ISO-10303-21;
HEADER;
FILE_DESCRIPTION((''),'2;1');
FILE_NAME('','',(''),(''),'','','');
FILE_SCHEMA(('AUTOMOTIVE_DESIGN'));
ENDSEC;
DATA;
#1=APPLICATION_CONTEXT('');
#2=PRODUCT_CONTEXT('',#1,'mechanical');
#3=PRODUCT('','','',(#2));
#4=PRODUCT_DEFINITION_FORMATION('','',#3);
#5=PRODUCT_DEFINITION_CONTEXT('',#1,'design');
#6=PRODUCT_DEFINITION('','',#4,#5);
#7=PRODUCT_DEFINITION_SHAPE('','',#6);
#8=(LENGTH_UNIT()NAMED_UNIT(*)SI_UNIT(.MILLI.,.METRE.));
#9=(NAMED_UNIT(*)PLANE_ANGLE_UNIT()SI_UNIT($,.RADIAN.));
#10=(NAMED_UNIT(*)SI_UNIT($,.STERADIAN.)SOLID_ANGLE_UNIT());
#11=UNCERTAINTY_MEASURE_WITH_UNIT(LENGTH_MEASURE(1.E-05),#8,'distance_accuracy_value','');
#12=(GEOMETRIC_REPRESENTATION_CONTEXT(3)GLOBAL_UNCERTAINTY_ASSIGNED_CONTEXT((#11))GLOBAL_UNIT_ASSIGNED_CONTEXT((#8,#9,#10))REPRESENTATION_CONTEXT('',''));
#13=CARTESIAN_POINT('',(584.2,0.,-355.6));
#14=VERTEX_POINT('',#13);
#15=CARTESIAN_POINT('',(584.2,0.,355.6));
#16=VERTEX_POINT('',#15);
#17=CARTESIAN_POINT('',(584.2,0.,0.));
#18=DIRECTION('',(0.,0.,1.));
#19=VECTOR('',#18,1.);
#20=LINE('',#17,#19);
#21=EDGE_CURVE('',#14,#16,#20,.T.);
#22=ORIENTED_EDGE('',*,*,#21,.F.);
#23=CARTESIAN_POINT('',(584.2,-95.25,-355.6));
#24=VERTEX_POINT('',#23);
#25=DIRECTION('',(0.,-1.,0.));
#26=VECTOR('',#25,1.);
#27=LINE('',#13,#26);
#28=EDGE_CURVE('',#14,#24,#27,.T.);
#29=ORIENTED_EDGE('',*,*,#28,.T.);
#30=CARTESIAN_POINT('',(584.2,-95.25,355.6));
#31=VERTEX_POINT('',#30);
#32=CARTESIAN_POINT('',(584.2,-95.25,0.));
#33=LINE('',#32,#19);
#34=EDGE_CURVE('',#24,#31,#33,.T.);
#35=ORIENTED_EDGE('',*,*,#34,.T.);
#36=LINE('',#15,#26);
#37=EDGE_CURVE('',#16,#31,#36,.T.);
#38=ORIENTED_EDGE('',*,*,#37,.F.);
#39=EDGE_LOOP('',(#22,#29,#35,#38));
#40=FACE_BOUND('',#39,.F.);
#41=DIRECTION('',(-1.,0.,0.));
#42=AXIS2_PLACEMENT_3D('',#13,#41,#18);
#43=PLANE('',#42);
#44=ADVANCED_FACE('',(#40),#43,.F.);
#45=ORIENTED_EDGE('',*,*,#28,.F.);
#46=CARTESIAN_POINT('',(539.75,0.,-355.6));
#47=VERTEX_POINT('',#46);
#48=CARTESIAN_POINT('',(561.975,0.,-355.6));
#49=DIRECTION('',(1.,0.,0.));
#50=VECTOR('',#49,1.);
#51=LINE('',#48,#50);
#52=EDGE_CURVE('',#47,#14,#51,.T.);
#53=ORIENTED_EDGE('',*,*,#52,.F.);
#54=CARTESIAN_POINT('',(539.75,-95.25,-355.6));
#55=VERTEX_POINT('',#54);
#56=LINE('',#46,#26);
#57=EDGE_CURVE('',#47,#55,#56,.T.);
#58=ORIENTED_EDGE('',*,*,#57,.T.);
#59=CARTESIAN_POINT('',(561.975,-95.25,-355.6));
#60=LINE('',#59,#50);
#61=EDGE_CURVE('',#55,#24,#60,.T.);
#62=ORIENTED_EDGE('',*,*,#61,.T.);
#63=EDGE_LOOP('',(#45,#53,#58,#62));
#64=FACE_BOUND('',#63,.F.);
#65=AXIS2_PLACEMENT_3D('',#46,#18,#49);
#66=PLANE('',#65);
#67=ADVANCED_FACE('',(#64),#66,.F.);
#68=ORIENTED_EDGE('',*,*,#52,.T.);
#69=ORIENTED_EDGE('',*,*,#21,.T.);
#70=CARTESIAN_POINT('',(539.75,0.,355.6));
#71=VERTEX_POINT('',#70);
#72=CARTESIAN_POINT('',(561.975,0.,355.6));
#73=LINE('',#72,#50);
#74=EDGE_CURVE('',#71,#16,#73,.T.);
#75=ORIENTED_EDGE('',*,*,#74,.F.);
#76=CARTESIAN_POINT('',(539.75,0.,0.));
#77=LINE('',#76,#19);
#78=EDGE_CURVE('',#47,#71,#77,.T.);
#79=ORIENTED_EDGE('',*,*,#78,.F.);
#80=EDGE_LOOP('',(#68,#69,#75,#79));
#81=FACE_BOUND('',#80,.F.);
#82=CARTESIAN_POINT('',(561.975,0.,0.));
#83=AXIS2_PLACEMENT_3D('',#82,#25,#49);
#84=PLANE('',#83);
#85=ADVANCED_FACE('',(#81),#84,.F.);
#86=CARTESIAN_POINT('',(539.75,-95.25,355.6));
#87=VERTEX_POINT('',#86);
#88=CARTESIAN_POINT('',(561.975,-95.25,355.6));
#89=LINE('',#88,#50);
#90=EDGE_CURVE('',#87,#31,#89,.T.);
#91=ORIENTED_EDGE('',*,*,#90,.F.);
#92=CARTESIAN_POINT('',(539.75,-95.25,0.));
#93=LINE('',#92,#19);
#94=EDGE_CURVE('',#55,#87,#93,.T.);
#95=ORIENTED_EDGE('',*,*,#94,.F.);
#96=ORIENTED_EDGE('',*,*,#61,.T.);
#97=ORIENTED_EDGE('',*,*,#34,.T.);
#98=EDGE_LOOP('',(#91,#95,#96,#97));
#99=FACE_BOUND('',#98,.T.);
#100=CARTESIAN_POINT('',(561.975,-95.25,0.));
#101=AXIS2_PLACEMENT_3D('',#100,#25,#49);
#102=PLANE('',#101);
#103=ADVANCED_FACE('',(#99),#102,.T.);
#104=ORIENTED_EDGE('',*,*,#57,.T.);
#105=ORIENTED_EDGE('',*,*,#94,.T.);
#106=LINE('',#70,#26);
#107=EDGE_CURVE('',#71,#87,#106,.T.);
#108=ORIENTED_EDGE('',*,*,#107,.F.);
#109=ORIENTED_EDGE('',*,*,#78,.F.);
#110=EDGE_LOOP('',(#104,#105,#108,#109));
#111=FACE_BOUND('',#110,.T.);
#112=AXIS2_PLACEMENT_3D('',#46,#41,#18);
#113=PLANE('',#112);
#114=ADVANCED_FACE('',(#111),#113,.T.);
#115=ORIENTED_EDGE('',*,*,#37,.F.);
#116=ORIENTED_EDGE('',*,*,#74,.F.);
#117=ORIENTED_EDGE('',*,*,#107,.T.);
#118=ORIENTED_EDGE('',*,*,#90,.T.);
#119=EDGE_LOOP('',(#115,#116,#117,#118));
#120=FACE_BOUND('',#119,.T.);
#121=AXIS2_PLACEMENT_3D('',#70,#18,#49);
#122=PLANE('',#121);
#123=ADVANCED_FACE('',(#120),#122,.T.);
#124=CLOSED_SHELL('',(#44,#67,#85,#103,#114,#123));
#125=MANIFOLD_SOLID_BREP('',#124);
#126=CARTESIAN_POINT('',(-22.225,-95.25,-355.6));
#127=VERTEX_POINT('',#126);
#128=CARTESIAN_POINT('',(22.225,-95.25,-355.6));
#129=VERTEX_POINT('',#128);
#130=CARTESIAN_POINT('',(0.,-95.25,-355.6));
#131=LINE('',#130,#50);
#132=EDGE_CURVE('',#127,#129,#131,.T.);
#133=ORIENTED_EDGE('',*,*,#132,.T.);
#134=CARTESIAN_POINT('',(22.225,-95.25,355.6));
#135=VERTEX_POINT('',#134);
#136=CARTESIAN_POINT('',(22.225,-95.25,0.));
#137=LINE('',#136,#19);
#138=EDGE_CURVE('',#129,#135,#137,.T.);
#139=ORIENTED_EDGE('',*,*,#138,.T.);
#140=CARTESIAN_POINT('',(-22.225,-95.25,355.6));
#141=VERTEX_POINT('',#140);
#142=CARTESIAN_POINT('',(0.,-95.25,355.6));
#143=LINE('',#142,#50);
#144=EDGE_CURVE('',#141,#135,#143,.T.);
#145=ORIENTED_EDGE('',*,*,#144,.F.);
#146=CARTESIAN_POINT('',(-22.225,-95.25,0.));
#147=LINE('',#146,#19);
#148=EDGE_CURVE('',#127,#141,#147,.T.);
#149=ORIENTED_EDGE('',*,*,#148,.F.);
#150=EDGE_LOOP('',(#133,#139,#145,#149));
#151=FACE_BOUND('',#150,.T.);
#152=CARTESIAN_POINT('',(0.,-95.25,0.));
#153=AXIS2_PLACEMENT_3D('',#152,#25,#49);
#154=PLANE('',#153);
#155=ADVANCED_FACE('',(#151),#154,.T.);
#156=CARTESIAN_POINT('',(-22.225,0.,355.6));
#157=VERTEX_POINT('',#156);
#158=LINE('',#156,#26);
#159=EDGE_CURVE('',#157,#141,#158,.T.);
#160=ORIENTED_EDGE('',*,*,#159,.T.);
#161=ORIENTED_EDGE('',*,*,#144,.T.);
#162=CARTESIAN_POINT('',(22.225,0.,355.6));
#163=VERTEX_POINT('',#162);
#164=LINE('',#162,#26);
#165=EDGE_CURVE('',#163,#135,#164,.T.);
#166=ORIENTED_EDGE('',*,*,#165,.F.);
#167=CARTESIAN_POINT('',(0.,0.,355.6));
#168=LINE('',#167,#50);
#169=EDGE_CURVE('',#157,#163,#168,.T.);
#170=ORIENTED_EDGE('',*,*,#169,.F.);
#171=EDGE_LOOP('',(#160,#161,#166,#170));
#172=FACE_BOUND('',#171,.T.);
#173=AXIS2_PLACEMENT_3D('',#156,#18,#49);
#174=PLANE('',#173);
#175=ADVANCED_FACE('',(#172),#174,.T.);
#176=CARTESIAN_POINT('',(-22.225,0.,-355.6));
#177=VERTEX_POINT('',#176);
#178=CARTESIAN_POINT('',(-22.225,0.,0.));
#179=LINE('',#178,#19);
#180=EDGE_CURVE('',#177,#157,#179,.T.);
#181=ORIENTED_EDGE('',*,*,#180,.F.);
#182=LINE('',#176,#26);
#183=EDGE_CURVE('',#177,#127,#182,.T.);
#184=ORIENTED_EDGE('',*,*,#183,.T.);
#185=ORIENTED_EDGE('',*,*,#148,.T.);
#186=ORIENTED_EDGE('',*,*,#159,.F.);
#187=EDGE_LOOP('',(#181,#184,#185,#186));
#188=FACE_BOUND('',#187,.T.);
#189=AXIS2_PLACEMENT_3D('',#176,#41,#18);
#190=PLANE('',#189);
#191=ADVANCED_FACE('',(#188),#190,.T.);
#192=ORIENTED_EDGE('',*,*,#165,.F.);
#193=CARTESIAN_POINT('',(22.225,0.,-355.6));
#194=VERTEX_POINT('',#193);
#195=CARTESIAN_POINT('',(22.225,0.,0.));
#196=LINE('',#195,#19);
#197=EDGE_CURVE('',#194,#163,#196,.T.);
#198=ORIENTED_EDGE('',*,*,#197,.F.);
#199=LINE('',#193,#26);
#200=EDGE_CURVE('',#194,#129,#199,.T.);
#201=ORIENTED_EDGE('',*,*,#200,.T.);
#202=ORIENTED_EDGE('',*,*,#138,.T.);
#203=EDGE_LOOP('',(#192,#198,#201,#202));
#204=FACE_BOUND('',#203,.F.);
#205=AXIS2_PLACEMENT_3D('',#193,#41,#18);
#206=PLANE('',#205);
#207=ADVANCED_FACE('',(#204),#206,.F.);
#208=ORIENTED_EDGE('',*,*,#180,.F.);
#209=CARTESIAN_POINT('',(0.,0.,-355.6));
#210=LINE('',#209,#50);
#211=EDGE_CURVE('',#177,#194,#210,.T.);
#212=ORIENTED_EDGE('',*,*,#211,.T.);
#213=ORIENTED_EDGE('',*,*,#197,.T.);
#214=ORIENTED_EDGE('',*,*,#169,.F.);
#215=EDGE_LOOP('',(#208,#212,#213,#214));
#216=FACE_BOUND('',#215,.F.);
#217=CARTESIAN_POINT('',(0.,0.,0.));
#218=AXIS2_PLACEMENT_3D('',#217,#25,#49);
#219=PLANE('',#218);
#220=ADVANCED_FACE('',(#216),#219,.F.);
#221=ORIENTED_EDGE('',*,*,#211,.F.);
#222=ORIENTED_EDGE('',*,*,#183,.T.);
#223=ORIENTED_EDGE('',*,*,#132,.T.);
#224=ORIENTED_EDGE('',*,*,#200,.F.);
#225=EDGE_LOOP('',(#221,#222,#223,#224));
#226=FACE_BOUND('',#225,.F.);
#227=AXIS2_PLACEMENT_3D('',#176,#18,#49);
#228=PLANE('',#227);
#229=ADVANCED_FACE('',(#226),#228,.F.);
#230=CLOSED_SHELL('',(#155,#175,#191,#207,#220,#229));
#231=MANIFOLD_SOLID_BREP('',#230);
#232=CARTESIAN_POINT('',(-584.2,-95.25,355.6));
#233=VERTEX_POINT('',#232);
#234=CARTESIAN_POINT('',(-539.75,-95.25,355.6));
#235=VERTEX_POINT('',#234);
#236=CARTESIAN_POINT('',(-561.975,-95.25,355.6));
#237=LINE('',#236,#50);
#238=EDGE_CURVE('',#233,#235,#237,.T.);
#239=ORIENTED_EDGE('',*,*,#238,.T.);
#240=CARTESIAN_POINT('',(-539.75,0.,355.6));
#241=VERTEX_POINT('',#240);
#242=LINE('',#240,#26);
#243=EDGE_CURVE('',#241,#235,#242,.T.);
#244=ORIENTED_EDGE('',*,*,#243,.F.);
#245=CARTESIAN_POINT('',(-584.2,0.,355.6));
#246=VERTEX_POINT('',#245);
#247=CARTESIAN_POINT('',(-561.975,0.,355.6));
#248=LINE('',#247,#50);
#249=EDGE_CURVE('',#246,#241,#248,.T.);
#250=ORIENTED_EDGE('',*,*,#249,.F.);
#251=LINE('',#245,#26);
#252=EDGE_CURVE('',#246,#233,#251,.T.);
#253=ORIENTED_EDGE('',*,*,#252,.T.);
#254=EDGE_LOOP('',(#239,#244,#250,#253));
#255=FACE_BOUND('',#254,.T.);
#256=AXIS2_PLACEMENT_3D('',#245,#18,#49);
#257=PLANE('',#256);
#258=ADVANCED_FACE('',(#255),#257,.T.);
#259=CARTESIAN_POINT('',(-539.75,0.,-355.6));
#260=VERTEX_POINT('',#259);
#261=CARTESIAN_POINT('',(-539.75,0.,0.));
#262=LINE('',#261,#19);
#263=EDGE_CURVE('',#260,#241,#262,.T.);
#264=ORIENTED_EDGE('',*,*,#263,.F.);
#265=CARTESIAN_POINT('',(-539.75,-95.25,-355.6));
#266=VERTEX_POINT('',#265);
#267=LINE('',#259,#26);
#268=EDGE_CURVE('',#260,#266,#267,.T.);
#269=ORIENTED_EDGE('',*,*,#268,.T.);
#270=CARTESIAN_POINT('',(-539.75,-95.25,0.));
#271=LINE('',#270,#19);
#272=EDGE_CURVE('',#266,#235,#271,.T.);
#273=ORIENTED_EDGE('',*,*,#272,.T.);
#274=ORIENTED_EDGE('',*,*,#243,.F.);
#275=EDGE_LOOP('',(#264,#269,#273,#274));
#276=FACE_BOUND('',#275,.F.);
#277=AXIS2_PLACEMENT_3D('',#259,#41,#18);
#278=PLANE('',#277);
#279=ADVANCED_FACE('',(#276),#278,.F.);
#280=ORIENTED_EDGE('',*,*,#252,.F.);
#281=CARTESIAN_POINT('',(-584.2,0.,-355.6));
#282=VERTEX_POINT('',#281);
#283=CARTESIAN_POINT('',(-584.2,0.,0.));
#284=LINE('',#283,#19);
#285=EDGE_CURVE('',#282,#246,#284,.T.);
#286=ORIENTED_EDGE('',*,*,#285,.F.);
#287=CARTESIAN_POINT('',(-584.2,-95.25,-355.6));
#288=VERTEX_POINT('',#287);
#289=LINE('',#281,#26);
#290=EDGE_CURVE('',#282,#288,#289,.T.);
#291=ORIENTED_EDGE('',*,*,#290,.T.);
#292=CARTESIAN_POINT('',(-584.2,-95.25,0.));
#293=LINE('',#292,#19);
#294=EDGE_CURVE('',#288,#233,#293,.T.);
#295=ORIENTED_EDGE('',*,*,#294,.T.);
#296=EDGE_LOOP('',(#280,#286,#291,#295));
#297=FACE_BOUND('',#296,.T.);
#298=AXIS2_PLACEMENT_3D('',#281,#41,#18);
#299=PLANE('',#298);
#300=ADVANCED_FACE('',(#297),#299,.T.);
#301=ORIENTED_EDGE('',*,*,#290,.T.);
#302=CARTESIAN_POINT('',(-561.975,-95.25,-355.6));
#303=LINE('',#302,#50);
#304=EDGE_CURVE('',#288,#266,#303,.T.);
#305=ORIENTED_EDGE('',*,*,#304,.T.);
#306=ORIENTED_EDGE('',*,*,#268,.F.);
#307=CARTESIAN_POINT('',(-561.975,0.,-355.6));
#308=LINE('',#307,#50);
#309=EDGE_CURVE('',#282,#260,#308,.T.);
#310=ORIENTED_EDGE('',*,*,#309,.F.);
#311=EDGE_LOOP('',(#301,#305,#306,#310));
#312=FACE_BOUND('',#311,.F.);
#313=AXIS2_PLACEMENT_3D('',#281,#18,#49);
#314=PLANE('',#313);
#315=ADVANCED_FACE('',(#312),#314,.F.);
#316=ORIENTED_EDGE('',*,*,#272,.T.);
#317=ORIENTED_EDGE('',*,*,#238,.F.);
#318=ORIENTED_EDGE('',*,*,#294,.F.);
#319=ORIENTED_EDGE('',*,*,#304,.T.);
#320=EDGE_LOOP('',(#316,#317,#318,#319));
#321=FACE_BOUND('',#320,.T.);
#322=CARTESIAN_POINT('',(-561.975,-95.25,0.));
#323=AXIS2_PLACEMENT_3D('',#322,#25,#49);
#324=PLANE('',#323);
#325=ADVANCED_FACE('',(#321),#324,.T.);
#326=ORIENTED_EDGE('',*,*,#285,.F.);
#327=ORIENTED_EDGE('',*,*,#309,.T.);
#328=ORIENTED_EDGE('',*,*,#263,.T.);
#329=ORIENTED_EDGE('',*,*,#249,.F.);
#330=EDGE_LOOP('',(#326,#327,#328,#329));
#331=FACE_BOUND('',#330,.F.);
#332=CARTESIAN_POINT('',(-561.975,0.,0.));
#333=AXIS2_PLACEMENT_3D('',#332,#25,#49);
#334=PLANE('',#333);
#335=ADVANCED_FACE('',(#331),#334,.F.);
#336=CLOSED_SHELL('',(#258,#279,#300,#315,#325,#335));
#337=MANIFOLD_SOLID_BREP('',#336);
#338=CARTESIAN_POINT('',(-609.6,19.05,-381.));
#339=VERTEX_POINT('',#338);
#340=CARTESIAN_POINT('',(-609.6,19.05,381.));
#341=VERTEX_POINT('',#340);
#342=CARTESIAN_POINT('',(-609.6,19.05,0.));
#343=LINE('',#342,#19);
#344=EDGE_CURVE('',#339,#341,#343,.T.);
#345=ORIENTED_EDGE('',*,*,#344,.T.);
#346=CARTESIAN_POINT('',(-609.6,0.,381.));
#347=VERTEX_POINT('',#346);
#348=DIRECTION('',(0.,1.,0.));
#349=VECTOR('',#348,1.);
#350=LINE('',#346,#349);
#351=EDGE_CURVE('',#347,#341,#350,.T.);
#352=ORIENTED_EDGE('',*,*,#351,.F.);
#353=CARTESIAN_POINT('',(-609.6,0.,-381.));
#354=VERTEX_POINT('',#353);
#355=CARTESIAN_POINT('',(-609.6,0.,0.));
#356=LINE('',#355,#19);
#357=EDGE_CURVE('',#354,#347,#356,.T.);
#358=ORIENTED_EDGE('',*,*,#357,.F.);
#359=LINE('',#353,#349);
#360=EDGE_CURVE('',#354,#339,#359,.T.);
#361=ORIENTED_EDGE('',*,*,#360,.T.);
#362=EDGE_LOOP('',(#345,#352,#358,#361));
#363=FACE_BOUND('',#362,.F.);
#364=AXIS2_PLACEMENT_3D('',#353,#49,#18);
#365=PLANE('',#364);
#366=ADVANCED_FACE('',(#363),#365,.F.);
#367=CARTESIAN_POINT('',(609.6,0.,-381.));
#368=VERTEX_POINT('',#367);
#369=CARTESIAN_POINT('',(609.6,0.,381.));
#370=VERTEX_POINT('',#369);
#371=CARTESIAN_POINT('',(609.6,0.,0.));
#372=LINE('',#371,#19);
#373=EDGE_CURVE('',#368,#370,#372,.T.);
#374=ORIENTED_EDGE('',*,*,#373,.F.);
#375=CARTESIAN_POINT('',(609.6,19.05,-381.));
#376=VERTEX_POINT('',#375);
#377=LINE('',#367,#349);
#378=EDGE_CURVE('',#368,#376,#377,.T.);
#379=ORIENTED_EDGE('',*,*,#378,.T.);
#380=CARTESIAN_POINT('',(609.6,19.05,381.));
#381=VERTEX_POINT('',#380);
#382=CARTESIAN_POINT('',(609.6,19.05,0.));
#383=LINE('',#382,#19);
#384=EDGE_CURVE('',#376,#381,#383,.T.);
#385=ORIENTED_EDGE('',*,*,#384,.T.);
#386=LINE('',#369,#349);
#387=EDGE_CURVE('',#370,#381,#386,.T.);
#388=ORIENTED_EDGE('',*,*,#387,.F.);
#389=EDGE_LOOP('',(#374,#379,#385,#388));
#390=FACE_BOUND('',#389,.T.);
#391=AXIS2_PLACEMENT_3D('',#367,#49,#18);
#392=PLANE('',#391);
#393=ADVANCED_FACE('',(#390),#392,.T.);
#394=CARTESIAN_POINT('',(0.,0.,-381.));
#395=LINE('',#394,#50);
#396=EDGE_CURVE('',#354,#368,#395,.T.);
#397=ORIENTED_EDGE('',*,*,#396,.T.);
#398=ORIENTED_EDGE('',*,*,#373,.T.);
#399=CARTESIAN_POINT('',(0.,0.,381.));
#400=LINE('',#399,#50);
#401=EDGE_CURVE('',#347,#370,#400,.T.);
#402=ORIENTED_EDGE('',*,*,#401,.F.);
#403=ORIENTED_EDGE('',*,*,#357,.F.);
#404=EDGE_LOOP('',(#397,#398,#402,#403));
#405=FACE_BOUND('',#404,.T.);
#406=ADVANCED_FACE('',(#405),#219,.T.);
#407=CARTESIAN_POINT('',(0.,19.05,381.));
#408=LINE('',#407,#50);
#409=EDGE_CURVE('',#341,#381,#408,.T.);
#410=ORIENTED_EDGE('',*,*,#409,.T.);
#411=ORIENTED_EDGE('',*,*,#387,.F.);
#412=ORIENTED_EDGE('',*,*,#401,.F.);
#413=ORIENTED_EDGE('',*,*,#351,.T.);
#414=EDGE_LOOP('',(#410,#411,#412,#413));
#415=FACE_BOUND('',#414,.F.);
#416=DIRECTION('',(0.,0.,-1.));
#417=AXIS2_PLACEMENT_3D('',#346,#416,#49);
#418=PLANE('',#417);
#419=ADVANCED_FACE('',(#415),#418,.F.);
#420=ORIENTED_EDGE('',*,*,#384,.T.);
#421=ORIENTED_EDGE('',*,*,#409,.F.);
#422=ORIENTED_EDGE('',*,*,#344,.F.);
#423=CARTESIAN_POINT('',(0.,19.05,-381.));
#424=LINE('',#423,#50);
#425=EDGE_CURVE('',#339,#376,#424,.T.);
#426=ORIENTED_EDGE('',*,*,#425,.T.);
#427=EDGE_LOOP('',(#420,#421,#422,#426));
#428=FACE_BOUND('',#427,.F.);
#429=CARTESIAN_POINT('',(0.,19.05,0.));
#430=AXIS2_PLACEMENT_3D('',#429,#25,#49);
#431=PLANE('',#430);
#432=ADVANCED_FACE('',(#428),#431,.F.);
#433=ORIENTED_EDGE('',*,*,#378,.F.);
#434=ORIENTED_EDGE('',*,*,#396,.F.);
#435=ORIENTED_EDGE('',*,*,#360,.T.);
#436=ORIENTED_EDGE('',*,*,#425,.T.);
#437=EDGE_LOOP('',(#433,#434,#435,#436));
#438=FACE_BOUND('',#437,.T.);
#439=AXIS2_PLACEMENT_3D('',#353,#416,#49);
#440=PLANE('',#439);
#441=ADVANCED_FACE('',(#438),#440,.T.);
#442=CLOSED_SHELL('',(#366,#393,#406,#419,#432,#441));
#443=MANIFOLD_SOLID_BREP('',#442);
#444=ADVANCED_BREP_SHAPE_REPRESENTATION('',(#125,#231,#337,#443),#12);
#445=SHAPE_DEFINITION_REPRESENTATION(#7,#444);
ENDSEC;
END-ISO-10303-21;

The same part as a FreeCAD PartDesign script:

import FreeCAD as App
import Part
import Sketcher
from FreeCAD import Vector
Q = App.Units.Quantity

doc = App.newDocument("Part")
body = doc.addObject("PartDesign::Body", "Body")
body.AllowCompound = True

sketch1 = body.newObject("Sketcher::SketchObject", "Sketch")
sketch1.AttachmentSupport = (doc.getObject("XZ_Plane"), [""])
sketch1.MapMode = "FlatFace"
sketch1.addGeometry(Part.LineSegment(Vector(-22, 356, 0), Vector(-22, -356, 0)), False)
sketch1.addGeometry(Part.LineSegment(Vector(-22, -356, 0), Vector(22, -356, 0)), False)
sketch1.addGeometry(Part.LineSegment(Vector(22, -356, 0), Vector(22, 356, 0)), False)
sketch1.addGeometry(Part.LineSegment(Vector(22, 356, 0), Vector(-22, 356, 0)), False)
sketch1.addGeometry(Part.LineSegment(Vector(-584, 356, 0), Vector(-584, -356, 0)), False)
sketch1.addGeometry(Part.LineSegment(Vector(-584, -356, 0), Vector(-540, -356, 0)), False)
sketch1.addGeometry(Part.LineSegment(Vector(-540, -356, 0), Vector(-540, 356, 0)), False)
sketch1.addGeometry(Part.LineSegment(Vector(-540, 356, 0), Vector(-584, 356, 0)), False)
sketch1.addGeometry(Part.LineSegment(Vector(540, 356, 0), Vector(540, -356, 0)), False)
sketch1.addGeometry(Part.LineSegment(Vector(540, -356, 0), Vector(584, -356, 0)), False)
sketch1.addGeometry(Part.LineSegment(Vector(584, -356, 0), Vector(584, 356, 0)), False)
sketch1.addGeometry(Part.LineSegment(Vector(584, 356, 0), Vector(540, 356, 0)), False)
sketch1.addConstraint(Sketcher.Constraint("Coincident", 0, 2, 1, 1))
sketch1.addConstraint(Sketcher.Constraint("Coincident", 1, 2, 2, 1))
sketch1.addConstraint(Sketcher.Constraint("Coincident", 2, 2, 3, 1))
sketch1.addConstraint(Sketcher.Constraint("Coincident", 3, 2, 0, 1))
sketch1.addConstraint(Sketcher.Constraint("Coincident", 4, 2, 5, 1))
sketch1.addConstraint(Sketcher.Constraint("Coincident", 5, 2, 6, 1))
sketch1.addConstraint(Sketcher.Constraint("Coincident", 6, 2, 7, 1))
sketch1.addConstraint(Sketcher.Constraint("Coincident", 7, 2, 4, 1))
sketch1.addConstraint(Sketcher.Constraint("Coincident", 8, 2, 9, 1))
sketch1.addConstraint(Sketcher.Constraint("Coincident", 9, 2, 10, 1))
sketch1.addConstraint(Sketcher.Constraint("Coincident", 10, 2, 11, 1))
sketch1.addConstraint(Sketcher.Constraint("Coincident", 11, 2, 8, 1))
sketch1.addConstraint(Sketcher.Constraint("Vertical", 0))
sketch1.addConstraint(Sketcher.Constraint("Horizontal", 1))
sketch1.addConstraint(Sketcher.Constraint("Vertical", 2))
sketch1.addConstraint(Sketcher.Constraint("Horizontal", 3))
sketch1.addConstraint(Sketcher.Constraint("Vertical", 4))
sketch1.addConstraint(Sketcher.Constraint("Horizontal", 5))
sketch1.addConstraint(Sketcher.Constraint("Vertical", 6))
sketch1.addConstraint(Sketcher.Constraint("Horizontal", 7))
sketch1.addConstraint(Sketcher.Constraint("Vertical", 8))
sketch1.addConstraint(Sketcher.Constraint("Horizontal", 9))
sketch1.addConstraint(Sketcher.Constraint("Vertical", 10))
sketch1.addConstraint(Sketcher.Constraint("Horizontal", 11))
sketch1.addConstraint(Sketcher.Constraint("Symmetric", 0, 2, 2, 2, -1, 1))
sketch1.addConstraint(Sketcher.Constraint("Symmetric", 6, 2, 8, 2, -1, 1))
sketch1.addConstraint(Sketcher.Constraint("Symmetric", 4, 2, 10, 2, -1, 1))
sketch1.addConstraint(Sketcher.Constraint("Horizontal", 1, 2, 4, 2))
sketch1.addConstraint(Sketcher.Constraint("Horizontal", 3, 2, 6, 2))
sketch1.addConstraint(Sketcher.Constraint("Equal", 3, 5))
sketch1.addConstraint(Sketcher.Constraint("DistanceY", 0, 2, 0, 1, Q("28 in")))
sketch1.addConstraint(Sketcher.Constraint("DistanceX", 4, 2, -1, 1, Q("23 in")))
sketch1.addConstraint(Sketcher.Constraint("DistanceX", 1, 1, 1, 2, Q("1.75 in")))
pad1 = body.newObject("PartDesign::Pad", "Pad")
pad1.Profile = sketch1
pad1.Length = Q("3.75 in")
body2 = doc.addObject("PartDesign::Body", "Body001")

sketch2 = body2.newObject("Sketcher::SketchObject", "Sketch001")
sketch2.AttachmentSupport = (doc.getObject("XZ_Plane001"), [""])
sketch2.MapMode = "FlatFace"
sketch2.addGeometry(Part.LineSegment(Vector(-610, 381, 0), Vector(-610, -381, 0)), False)
sketch2.addGeometry(Part.LineSegment(Vector(-610, -381, 0), Vector(610, -381, 0)), False)
sketch2.addGeometry(Part.LineSegment(Vector(610, -381, 0), Vector(610, 381, 0)), False)
sketch2.addGeometry(Part.LineSegment(Vector(610, 381, 0), Vector(-610, 381, 0)), False)
sketch2.addConstraint(Sketcher.Constraint("Coincident", 0, 2, 1, 1))
sketch2.addConstraint(Sketcher.Constraint("Coincident", 1, 2, 2, 1))
sketch2.addConstraint(Sketcher.Constraint("Coincident", 2, 2, 3, 1))
sketch2.addConstraint(Sketcher.Constraint("Coincident", 3, 2, 0, 1))
sketch2.addConstraint(Sketcher.Constraint("Vertical", 0))
sketch2.addConstraint(Sketcher.Constraint("Horizontal", 1))
sketch2.addConstraint(Sketcher.Constraint("Vertical", 2))
sketch2.addConstraint(Sketcher.Constraint("Horizontal", 3))
sketch2.addConstraint(Sketcher.Constraint("Symmetric", 0, 2, 2, 2, -1, 1))
sketch2.addConstraint(Sketcher.Constraint("DistanceX", 1, 1, 1, 2, Q("48 in")))
sketch2.addConstraint(Sketcher.Constraint("DistanceY", 0, 2, 0, 1, Q("30 in")))
pad2 = body2.newObject("PartDesign::Pad", "Pad001")
pad2.Profile = sketch2
pad2.Length = Q("0.75 in")
pad2.Reversed = True

doc.recompute()
